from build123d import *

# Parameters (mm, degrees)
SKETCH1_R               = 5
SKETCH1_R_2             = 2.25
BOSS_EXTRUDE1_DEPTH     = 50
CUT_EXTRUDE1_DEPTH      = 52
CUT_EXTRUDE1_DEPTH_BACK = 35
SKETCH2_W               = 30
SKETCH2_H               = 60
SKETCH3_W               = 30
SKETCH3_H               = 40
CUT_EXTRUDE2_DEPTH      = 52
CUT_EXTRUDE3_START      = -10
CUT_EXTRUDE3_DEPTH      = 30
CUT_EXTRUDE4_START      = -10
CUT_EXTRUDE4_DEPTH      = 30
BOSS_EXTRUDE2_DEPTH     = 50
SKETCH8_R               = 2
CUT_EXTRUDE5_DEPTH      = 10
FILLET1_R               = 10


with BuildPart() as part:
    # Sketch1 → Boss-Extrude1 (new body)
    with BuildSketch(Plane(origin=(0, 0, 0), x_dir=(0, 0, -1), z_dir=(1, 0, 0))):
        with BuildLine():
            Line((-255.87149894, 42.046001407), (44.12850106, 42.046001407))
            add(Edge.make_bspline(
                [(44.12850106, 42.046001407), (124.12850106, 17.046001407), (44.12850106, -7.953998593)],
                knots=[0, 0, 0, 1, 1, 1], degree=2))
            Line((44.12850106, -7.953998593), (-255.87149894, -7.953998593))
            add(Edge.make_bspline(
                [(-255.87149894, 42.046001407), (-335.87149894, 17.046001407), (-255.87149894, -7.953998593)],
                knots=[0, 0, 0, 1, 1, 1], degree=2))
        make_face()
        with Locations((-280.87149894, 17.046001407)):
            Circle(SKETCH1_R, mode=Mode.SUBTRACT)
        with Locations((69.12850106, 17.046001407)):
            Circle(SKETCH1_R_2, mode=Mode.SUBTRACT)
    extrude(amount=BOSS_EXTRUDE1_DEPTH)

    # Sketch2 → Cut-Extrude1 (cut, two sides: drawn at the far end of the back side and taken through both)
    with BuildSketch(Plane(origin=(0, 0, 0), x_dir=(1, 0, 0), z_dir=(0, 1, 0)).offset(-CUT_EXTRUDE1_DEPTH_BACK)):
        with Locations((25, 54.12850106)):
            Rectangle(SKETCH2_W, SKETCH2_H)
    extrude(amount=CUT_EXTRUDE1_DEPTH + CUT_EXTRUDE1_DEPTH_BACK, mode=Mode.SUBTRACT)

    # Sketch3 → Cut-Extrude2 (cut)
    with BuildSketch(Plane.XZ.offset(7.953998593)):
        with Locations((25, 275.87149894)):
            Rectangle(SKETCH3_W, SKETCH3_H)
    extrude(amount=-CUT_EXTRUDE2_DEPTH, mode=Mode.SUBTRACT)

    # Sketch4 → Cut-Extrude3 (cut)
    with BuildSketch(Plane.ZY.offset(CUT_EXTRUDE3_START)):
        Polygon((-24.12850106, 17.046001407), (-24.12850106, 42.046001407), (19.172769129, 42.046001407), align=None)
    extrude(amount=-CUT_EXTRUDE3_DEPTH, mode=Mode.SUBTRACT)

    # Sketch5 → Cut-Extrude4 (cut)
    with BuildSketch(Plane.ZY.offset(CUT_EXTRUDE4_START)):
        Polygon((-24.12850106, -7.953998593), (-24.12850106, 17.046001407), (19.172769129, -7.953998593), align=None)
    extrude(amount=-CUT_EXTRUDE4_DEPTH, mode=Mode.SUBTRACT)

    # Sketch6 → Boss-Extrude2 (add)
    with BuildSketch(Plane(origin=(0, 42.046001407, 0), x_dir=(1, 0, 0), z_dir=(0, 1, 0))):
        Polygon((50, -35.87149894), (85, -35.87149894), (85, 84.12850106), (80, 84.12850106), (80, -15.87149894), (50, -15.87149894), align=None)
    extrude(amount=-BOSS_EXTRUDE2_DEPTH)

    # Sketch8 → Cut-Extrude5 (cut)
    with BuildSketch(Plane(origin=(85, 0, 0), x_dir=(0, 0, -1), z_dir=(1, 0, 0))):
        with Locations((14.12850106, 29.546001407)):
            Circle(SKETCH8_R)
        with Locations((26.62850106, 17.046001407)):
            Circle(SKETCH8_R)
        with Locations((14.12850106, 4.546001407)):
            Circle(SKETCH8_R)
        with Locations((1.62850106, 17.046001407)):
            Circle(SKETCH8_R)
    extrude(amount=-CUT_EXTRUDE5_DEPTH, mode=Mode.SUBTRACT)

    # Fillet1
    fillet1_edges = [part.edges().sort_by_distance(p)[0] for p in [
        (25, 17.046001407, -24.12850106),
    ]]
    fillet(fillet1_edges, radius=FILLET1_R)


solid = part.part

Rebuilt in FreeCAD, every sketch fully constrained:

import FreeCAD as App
import Part
import Sketcher

V = App.Vector
Q = App.Units.Quantity


def edges_at(feature, points):
    """Names of the edges that pass closest to the given points."""
    edges = feature.Shape.Edges
    near = lambda p: min(range(len(edges)), key=lambda i: edges[i].distToShape(Part.Vertex(*p))[0])
    return sorted({f"Edge{near(p) + 1}" for p in points})


def add_polygon(sketch, points):
    """Adds a closed chain of lines whose ends are joined by coincident constraints."""
    first, n = sketch.GeometryCount, len(points)
    for a, b in zip(points, points[1:] + points[:1]):
        sketch.addGeometry(Part.LineSegment(App.Vector(*a, 0), App.Vector(*b, 0)), False)
    for i in range(n):
        sketch.addConstraint(Sketcher.Constraint("Coincident", first + i, 2, first + (i + 1) % n, 1))

doc = App.newDocument("Part")
body = doc.addObject("PartDesign::Body", "Body")

sketch1 = body.newObject("Sketcher::SketchObject", "Sketch")
sketch1.AttachmentSupport = (doc.getObject("YZ_Plane"), [""])
sketch1.MapMode = "FlatFace"
sketch1.addGeometry([
    Part.LineSegment(V(42.046001, -44.128501, 0), V(42.046001, 255.871499, 0)),
    Part.BSplineCurve([V(42.046001, 255.871499, 0), V(17.046001, 335.871499, 0), V(-7.953999, 255.871499, 0)], [3, 3], [0, 1], False, 2, [1, 1, 1], False),
    Part.LineSegment(V(-7.953999, 255.871499, 0), V(-7.953999, -44.128501, 0)),
    Part.BSplineCurve([V(42.046001, -44.128501, 0), V(17.046001, -124.128501, 0), V(-7.953999, -44.128501, 0)], [3, 3], [0, 1], False, 2, [1, 1, 1], False),
    Part.Circle(V(17.046001, -69.128501, 0), V(0, 0, 1), 2.25),
    Part.Circle(V(17.046001, 280.871499, 0), V(0, 0, 1), 5),
], False)
sketch1.addConstraint([
    Sketcher.Constraint("Block", 1),
    Sketcher.Constraint("Block", 3),
    Sketcher.Constraint("Coincident", 0, 2, 1, 1),
    Sketcher.Constraint("Coincident", 1, 2, 2, 1),
    Sketcher.Constraint("Coincident", 2, 2, 3, 2),
    Sketcher.Constraint("Coincident", 3, 1, 0, 1),
    Sketcher.Constraint("Vertical", 4, 3, 5, 3),
    Sketcher.Constraint("Diameter", 5, Q("10 mm")),
    Sketcher.Constraint("Diameter", 4, Q("4.5 mm")),
    Sketcher.Constraint("DistanceY", 4, 3, 5, 3, Q("350 mm")),
    Sketcher.Constraint("DistanceX", 5, 3, 0, 2, Q("25 mm")),
    Sketcher.Constraint("DistanceY", 0, 2, 5, 3, Q("25 mm")),
])
pad1 = body.newObject("PartDesign::Pad", "Pad")
pad1.Profile = sketch1
pad1.Length = 50

sketch2 = body.newObject("Sketcher::SketchObject", "Sketch001")
sketch2.AttachmentSupport = (doc.getObject("XZ_Plane"), [""])
sketch2.MapMode = "FlatFace"
add_polygon(sketch2, [(10, -84), (10, -24), (40, -24), (40, -84)])
sketch2.addConstraint([
    Sketcher.Constraint("Vertical", 0),
    Sketcher.Constraint("Horizontal", 1),
    Sketcher.Constraint("Vertical", 2),
    Sketcher.Constraint("Horizontal", 3),
    Sketcher.Constraint("DistanceX", 1, 1, 1, 2, Q("30 mm")),
    Sketcher.Constraint("DistanceY", 0, 1, 0, 2, Q("60 mm")),
    Sketcher.Constraint("DistanceX", -1, 1, 0, 2, Q("10 mm")),
    Sketcher.Constraint("DistanceY", 0, 2, -1, 1, Q("24.128501 mm")),
])
pocket1 = body.newObject("PartDesign::Pocket", "Pocket")
pocket1.Profile = sketch2
pocket1.Type = "ThroughAll"
pocket1.Midplane = True

sketch3 = body.newObject("Sketcher::SketchObject", "Sketch002")
sketch3.AttachmentSupport = (doc.getObject("XZ_Plane"), [""])
sketch3.MapMode = "FlatFace"
sketch3.AttachmentOffset = App.Placement(V(0, 0, 7.953999), App.Rotation())
add_polygon(sketch3, [(10, 296), (10, 256), (40, 256), (40, 296)])
sketch3.addConstraint([
    Sketcher.Constraint("Vertical", 0),
    Sketcher.Constraint("Horizontal", 1),
    Sketcher.Constraint("Vertical", 2),
    Sketcher.Constraint("Horizontal", 3),
    Sketcher.Constraint("DistanceX", 1, 1, 1, 2, Q("30 mm")),
    Sketcher.Constraint("DistanceY", 0, 2, 0, 1, Q("40 mm")),
    Sketcher.Constraint("DistanceX", -1, 1, 0, 2, Q("10 mm")),
    Sketcher.Constraint("DistanceY", -1, 1, 0, 2, Q("255.871499 mm")),
])
pocket2 = body.newObject("PartDesign::Pocket", "Pocket001")
pocket2.Profile = sketch3
pocket2.Length = 52

sketch4 = body.newObject("Sketcher::SketchObject", "Sketch003")
sketch4.AttachmentSupport = (doc.getObject("YZ_Plane"), [""])
sketch4.MapMode = "FlatFace"
sketch4.AttachmentOffset = App.Placement(V(0, 0, 10), App.Rotation())
add_polygon(sketch4, [(42, -24), (17, -24), (42, 19)])
sketch4.addConstraint([
    Sketcher.Constraint("Horizontal", 0),
    Sketcher.Constraint("Vertical", 2),
    Sketcher.Constraint("DistanceX", 0, 2, 0, 1, Q("25 mm")),
    Sketcher.Constraint("Angle", 1, Q("60 deg")),
    Sketcher.Constraint("DistanceX", -1, 1, 0, 2, Q("17.046001 mm")),
    Sketcher.Constraint("DistanceY", 0, 2, -1, 1, Q("24.128501 mm")),
])
pocket3 = body.newObject("PartDesign::Pocket", "Pocket002")
pocket3.Profile = sketch4
pocket3.Length = 30
pocket3.Reversed = True

sketch5 = body.newObject("Sketcher::SketchObject", "Sketch004")
sketch5.AttachmentSupport = (doc.getObject("YZ_Plane"), [""])
sketch5.MapMode = "FlatFace"
sketch5.AttachmentOffset = App.Placement(V(0, 0, 10), App.Rotation())
add_polygon(sketch5, [(17, -24), (-8, -24), (-8, 19)])
sketch5.addConstraint([
    Sketcher.Constraint("Horizontal", 0),
    Sketcher.Constraint("Vertical", 1),
    Sketcher.Constraint("DistanceX", 0, 2, 0, 1, Q("25 mm")),
    Sketcher.Constraint("Angle", 2, Q("-60 deg")),
    Sketcher.Constraint("DistanceX", 0, 2, -1, 1, Q("7.953999 mm")),
    Sketcher.Constraint("DistanceY", 0, 2, -1, 1, Q("24.128501 mm")),
])
pocket4 = body.newObject("PartDesign::Pocket", "Pocket003")
pocket4.Profile = sketch5
pocket4.Length = 30
pocket4.Reversed = True

sketch6 = body.newObject("Sketcher::SketchObject", "Sketch005")
sketch6.AttachmentSupport = (doc.getObject("XZ_Plane"), [""])
sketch6.MapMode = "FlatFace"
sketch6.AttachmentOffset = App.Placement(V(0, 0, -42.046001), App.Rotation())
add_polygon(sketch6, [(50, 36), (85, 36), (85, -84), (80, -84), (80, 16), (50, 16)])
sketch6.addConstraint([
    Sketcher.Constraint("Horizontal", 0),
    Sketcher.Constraint("Vertical", 1),
    Sketcher.Constraint("Horizontal", 2),
    Sketcher.Constraint("Vertical", 3),
    Sketcher.Constraint("Horizontal", 4),
    Sketcher.Constraint("Vertical", 5),
    Sketcher.Constraint("DistanceX", 0, 1, 0, 2, Q("35 mm")),
    Sketcher.Constraint("DistanceX", 2, 2, 2, 1, Q("5 mm")),
    Sketcher.Constraint("DistanceY", 1, 2, 1, 1, Q("120 mm")),
    Sketcher.Constraint("DistanceY", 3, 1, 3, 2, Q("100 mm")),
    Sketcher.Constraint("DistanceX", -1, 1, 0, 2, Q("85 mm")),
    Sketcher.Constraint("DistanceY", -1, 1, 0, 2, Q("35.871499 mm")),
])
pad2 = body.newObject("PartDesign::Pad", "Pad001")
pad2.Profile = sketch6
pad2.Length = 50

sketch7 = body.newObject("Sketcher::SketchObject", "Sketch006")
sketch7.AttachmentSupport = (doc.getObject("YZ_Plane"), [""])
sketch7.MapMode = "FlatFace"
sketch7.AttachmentOffset = App.Placement(V(0, 0, 85), App.Rotation())
sketch7.addGeometry([
    Part.Circle(V(29.5, -14.1, 0), V(0, 0, 1), 2),
    Part.Circle(V(17, -26.6, 0), V(0, 0, 1), 2),
    Part.Circle(V(4.5, -14.1, 0), V(0, 0, 1), 2),
    Part.Circle(V(17, -1.6, 0), V(0, 0, 1), 2),
], False)
sketch7.addConstraint([
    Sketcher.Constraint("Equal", 0, 1),
    Sketcher.Constraint("Equal", 1, 2),
    Sketcher.Constraint("Equal", 2, 3),
    Sketcher.Constraint("Horizontal", 0, 3, 2, 3),
    Sketcher.Constraint("Vertical", 1, 3, 3, 3),
    Sketcher.Constraint("Diameter", 0, Q("4 mm")),
    Sketcher.Constraint("DistanceX", 2, 3, 0, 3, Q("25 mm")),
    Sketcher.Constraint("DistanceY", 1, 3, 3, 3, Q("25 mm")),
    Sketcher.Constraint("DistanceX", 1, 3, 0, 3, Q("12.5 mm")),
    Sketcher.Constraint("DistanceY", 1, 3, 0, 3, Q("12.5 mm")),
    Sketcher.Constraint("DistanceX", -1, 1, 0, 3, Q("29.546001 mm")),
    Sketcher.Constraint("DistanceY", 0, 3, -1, 1, Q("14.128501 mm")),
])
pocket5 = body.newObject("PartDesign::Pocket", "Pocket004")
pocket5.Profile = sketch7
pocket5.Length = 10
doc.recompute()

fillet = body.newObject("PartDesign::Fillet", "Fillet")
fillet.Base = (pocket5, edges_at(pocket5, [(25, 17.046, -24.129)]))
fillet.Radius = 10

doc.recompute()
